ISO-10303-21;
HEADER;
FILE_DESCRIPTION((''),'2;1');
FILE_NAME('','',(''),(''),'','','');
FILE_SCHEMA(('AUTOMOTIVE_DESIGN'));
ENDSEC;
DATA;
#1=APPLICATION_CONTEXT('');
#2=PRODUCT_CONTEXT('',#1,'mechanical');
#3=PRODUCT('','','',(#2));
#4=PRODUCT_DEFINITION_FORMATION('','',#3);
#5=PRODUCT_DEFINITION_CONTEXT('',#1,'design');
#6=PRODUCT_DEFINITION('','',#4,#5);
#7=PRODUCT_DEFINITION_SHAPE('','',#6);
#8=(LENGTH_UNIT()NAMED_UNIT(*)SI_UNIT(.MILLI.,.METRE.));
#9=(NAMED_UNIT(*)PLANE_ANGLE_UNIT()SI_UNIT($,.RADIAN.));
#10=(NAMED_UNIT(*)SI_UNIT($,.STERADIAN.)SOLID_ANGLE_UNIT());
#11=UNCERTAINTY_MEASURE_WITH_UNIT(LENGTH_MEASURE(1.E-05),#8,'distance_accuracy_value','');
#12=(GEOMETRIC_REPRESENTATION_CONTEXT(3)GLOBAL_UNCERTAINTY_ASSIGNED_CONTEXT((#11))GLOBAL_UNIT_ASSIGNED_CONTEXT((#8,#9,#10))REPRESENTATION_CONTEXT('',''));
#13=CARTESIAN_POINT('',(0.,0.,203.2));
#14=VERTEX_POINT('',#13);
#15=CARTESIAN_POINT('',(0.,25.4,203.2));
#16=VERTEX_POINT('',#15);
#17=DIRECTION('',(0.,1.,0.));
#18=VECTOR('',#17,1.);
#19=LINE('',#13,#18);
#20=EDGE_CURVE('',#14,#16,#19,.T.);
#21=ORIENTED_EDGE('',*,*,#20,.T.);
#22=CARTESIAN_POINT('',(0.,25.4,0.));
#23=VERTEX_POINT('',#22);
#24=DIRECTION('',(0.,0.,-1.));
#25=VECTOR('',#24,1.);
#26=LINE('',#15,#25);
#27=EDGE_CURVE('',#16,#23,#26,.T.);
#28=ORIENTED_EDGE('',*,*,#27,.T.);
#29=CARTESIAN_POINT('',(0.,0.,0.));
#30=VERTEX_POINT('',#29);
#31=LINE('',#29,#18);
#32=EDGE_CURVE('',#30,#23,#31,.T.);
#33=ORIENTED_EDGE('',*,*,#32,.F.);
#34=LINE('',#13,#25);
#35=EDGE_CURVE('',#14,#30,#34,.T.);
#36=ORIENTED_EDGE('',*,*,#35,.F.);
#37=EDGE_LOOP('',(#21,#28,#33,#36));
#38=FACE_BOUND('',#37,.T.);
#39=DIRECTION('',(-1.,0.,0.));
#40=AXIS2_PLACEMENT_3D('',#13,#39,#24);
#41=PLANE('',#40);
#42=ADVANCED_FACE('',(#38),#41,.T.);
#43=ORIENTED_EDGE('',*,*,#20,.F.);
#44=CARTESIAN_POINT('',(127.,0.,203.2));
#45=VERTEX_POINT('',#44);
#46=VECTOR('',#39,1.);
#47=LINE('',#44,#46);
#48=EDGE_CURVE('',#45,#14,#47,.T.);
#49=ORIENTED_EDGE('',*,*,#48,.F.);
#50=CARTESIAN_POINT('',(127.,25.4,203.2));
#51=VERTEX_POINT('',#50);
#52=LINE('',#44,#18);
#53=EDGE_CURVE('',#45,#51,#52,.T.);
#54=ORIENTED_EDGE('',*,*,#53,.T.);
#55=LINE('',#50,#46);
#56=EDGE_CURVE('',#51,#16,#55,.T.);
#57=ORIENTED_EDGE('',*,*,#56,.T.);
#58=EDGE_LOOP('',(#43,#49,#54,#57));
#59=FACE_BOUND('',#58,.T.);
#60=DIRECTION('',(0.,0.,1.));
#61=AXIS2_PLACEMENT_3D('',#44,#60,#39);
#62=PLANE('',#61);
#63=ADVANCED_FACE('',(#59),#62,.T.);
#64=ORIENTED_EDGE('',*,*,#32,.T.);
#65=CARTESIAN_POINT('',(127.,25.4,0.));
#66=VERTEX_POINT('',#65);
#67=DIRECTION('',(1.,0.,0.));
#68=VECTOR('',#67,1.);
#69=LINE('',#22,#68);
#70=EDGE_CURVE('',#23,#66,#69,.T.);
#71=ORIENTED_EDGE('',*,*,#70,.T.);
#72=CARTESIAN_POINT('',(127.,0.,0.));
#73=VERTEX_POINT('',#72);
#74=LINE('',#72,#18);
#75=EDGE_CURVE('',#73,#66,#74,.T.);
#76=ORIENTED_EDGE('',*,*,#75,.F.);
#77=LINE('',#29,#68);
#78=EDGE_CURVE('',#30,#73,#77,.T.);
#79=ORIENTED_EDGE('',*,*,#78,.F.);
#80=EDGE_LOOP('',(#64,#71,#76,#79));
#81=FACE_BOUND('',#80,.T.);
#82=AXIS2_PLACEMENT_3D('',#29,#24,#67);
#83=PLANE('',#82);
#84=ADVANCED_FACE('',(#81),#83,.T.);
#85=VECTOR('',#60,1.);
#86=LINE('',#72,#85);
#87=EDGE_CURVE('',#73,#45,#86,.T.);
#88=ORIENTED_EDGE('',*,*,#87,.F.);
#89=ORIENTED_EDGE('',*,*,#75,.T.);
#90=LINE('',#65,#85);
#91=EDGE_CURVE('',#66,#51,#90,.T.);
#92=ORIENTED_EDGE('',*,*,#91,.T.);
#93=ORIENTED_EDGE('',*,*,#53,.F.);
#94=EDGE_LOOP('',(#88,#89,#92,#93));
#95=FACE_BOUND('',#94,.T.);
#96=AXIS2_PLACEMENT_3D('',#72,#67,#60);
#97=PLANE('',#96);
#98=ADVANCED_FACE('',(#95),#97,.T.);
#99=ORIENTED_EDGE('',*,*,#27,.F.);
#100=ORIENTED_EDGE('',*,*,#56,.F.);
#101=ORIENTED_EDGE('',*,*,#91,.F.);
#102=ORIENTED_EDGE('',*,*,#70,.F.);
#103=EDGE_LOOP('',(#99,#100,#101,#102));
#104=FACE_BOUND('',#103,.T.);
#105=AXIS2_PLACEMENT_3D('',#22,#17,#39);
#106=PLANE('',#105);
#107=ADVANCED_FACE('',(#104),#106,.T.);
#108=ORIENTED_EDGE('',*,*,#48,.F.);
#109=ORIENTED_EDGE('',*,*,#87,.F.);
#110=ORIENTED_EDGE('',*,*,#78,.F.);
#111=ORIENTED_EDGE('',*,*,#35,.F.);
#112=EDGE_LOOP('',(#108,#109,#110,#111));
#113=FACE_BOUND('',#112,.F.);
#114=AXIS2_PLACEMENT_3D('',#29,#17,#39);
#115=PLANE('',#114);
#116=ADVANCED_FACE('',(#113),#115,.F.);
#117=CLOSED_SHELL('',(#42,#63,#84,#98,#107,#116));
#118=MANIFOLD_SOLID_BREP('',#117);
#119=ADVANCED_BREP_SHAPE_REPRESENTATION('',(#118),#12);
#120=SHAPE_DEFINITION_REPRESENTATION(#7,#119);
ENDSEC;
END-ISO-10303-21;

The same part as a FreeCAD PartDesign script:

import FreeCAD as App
import Part
import Sketcher

V = App.Vector
Q = App.Units.Quantity

doc = App.newDocument("Part")
body = doc.addObject("PartDesign::Body", "Body")

# Sketch on XZ plane
sketch1 = doc.addObject("Sketcher::SketchObject", "Sketch")
body.addObject(sketch1)
sketch1.AttachmentSupport = (doc.XZ_Plane, [""])
sketch1.MapMode = "FlatFace"
sketch1.addGeometry([
    Part.LineSegment(V(127, 0, 0), V(0, 0, 0)),
    Part.LineSegment(V(0, 0, 0), V(0, 203, 0)),
    Part.LineSegment(V(0, 203, 0), V(127, 203, 0)),
    Part.LineSegment(V(127, 203, 0), V(127, 0, 0)),
], False)
sketch1.addConstraint([
    Sketcher.Constraint("Coincident", 0, 2, 1, 1),
    Sketcher.Constraint("Coincident", 1, 2, 2, 1),
    Sketcher.Constraint("Coincident", 2, 2, 3, 1),
    Sketcher.Constraint("Coincident", 3, 2, 0, 1),
    Sketcher.Constraint("Horizontal", 0),
    Sketcher.Constraint("Vertical", 1),
    Sketcher.Constraint("Horizontal", 2),
    Sketcher.Constraint("Vertical", 3),
    Sketcher.Constraint("Coincident", 0, 2, -1, 1),
    Sketcher.Constraint("DistanceX", 0, 2, 0, 1, Q("5 in")),
    Sketcher.Constraint("DistanceY", 1, 1, 1, 2, Q("8 in")),
])
pad1 = doc.addObject("PartDesign::Pad", "Pad")
body.addObject(pad1)
pad1.Profile = sketch1
pad1.Length = Q("1 in")
pad1.Reversed = True

doc.recompute()
